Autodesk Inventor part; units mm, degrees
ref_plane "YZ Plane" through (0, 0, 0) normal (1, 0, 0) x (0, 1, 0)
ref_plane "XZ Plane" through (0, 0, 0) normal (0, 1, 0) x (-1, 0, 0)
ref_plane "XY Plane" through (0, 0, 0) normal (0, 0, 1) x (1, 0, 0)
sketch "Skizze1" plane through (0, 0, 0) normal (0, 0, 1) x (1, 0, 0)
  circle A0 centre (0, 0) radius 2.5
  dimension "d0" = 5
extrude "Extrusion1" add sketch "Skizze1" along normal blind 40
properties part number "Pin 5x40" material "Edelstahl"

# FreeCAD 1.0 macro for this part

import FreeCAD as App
import Part
import Sketcher
Q = App.Units.Quantity

doc = App.newDocument("Part")
params = doc.addObject("Spreadsheet::Sheet", "Params")
for row, (alias, value) in enumerate([
    ("sketch1_diameter", "5 mm"),
    ("pad1_length", "40 mm"),
], start=1):
    params.set(f"A{row}", alias)
    params.set(f"B{row}", "=" + value)
    params.setAlias(f"B{row}", alias)

body = doc.addObject("PartDesign::Body", "Body")

# Sketch on XY plane
sketch1 = doc.addObject("Sketcher::SketchObject", "Sketch")
body.addObject(sketch1)
sketch1.AttachmentSupport = (doc.XY_Plane, [""])
sketch1.MapMode = "FlatFace"
sketch1.addGeometry(Part.Circle(App.Vector(0, 0, 0), App.Vector(0, 0, 1), 2.5), False)
sketch1.addConstraint([
    Sketcher.Constraint("Coincident", 0, 3, -1, 1),
    Sketcher.Constraint("Diameter", 0, Q("5 mm")),
])
sketch1.setExpression("Constraints[1]", "Params.sketch1_diameter")
pad1 = doc.addObject("PartDesign::Pad", "Pad")
body.addObject(pad1)
pad1.Profile = sketch1
pad1.setExpression("Length", "Params.pad1_length")

doc.recompute()
